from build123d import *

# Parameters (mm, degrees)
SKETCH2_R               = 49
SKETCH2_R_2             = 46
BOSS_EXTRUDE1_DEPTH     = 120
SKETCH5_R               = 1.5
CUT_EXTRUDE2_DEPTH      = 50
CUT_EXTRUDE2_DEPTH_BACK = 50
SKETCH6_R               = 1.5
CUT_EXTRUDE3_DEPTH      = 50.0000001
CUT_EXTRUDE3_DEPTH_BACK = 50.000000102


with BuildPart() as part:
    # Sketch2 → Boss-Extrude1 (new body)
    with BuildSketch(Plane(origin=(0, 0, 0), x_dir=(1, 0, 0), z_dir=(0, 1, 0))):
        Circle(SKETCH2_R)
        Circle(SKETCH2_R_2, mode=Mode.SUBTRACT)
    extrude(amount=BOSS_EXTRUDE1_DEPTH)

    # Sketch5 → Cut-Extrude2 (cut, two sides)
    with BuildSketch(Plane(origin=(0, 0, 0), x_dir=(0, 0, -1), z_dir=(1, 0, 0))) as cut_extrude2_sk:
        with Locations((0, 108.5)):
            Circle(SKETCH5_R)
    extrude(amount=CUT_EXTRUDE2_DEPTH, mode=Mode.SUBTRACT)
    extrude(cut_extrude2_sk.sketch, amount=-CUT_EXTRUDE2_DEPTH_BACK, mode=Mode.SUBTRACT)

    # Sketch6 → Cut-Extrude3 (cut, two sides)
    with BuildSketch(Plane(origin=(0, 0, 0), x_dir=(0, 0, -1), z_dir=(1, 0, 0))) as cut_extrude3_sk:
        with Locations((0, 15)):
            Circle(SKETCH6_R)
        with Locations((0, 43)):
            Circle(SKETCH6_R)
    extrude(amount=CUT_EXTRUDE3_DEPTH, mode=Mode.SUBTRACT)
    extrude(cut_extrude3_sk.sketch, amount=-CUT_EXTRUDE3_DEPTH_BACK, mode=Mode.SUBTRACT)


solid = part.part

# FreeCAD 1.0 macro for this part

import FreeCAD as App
import Part
import Sketcher

V = App.Vector
Q = App.Units.Quantity

doc = App.newDocument("Part")
params = doc.addObject("Spreadsheet::Sheet", "Params")
for row, (alias, value) in enumerate([
    ("sketch1_diameter", "98 mm"),
    ("sketch1_diameter2", "92 mm"),
    ("pad1_length", "120 mm"),
    ("sketch2_diameter", "3 mm"),
    ("sketch3_diameter", "3 mm"),
], start=1):
    params.set(f"A{row}", alias)
    params.set(f"B{row}", "=" + value)
    params.setAlias(f"B{row}", alias)

body = doc.addObject("PartDesign::Body", "Body")

# Sketch on XZ plane
sketch1 = body.newObject("Sketcher::SketchObject", "Sketch")
sketch1.AttachmentSupport = (doc.getObject("XZ_Plane"), [""])
sketch1.MapMode = "FlatFace"
sketch1.addGeometry([
    Part.Circle(V(0, 0, 0), V(0, 0, 1), 49),
    Part.Circle(V(0, 0, 0), V(0, 0, 1), 46),
], False)
sketch1.addConstraint([
    Sketcher.Constraint("Coincident", 0, 3, -1, 1),
    Sketcher.Constraint("Coincident", 1, 3, -1, 1),
    Sketcher.Constraint("Diameter", 0, Q("98 mm")),
    Sketcher.Constraint("Diameter", 1, Q("92 mm")),
])
sketch1.setExpression("Constraints[2]", "Params.sketch1_diameter")
sketch1.setExpression("Constraints[3]", "Params.sketch1_diameter2")
pad1 = body.newObject("PartDesign::Pad", "Pad")
pad1.Profile = sketch1
pad1.setExpression("Length", "Params.pad1_length")
pad1.Reversed = True

# Sketch on YZ plane
sketch2 = body.newObject("Sketcher::SketchObject", "Sketch001")
sketch2.AttachmentSupport = (doc.getObject("YZ_Plane"), [""])
sketch2.MapMode = "FlatFace"
sketch2.addGeometry(Part.Circle(V(108.5, 0, 0), V(0, 0, 1), 1.5), False)
sketch2.addConstraint([
    Sketcher.Constraint("PointOnObject", 0, 3, -1),
    Sketcher.Constraint("Diameter", 0, Q("3 mm")),
    Sketcher.Constraint("DistanceX", -1, 1, 0, 3, Q("108.5 mm")),
])
sketch2.setExpression("Constraints[1]", "Params.sketch2_diameter")
pocket1 = body.newObject("PartDesign::Pocket", "Pocket")
pocket1.Profile = sketch2
pocket1.Type = "ThroughAll"
pocket1.Midplane = True

# Sketch on YZ plane
sketch3 = body.newObject("Sketcher::SketchObject", "Sketch002")
sketch3.AttachmentSupport = (doc.getObject("YZ_Plane"), [""])
sketch3.MapMode = "FlatFace"
sketch3.addGeometry([
    Part.Circle(V(15, 0, 0), V(0, 0, 1), 1.5),
    Part.Circle(V(43, 0, 0), V(0, 0, 1), 1.5),
], False)
sketch3.addConstraint([
    Sketcher.Constraint("Equal", 0, 1),
    Sketcher.Constraint("PointOnObject", 0, 3, -1),
    Sketcher.Constraint("PointOnObject", 1, 3, -1),
    Sketcher.Constraint("Diameter", 0, Q("3 mm")),
    Sketcher.Constraint("DistanceX", -1, 1, 0, 3, Q("15 mm")),
    Sketcher.Constraint("DistanceX", -1, 1, 1, 3, Q("43 mm")),
])
sketch3.setExpression("Constraints[3]", "Params.sketch3_diameter")
pocket2 = body.newObject("PartDesign::Pocket", "Pocket001")
pocket2.Profile = sketch3
pocket2.Type = "ThroughAll"
pocket2.Midplane = True

doc.recompute()
